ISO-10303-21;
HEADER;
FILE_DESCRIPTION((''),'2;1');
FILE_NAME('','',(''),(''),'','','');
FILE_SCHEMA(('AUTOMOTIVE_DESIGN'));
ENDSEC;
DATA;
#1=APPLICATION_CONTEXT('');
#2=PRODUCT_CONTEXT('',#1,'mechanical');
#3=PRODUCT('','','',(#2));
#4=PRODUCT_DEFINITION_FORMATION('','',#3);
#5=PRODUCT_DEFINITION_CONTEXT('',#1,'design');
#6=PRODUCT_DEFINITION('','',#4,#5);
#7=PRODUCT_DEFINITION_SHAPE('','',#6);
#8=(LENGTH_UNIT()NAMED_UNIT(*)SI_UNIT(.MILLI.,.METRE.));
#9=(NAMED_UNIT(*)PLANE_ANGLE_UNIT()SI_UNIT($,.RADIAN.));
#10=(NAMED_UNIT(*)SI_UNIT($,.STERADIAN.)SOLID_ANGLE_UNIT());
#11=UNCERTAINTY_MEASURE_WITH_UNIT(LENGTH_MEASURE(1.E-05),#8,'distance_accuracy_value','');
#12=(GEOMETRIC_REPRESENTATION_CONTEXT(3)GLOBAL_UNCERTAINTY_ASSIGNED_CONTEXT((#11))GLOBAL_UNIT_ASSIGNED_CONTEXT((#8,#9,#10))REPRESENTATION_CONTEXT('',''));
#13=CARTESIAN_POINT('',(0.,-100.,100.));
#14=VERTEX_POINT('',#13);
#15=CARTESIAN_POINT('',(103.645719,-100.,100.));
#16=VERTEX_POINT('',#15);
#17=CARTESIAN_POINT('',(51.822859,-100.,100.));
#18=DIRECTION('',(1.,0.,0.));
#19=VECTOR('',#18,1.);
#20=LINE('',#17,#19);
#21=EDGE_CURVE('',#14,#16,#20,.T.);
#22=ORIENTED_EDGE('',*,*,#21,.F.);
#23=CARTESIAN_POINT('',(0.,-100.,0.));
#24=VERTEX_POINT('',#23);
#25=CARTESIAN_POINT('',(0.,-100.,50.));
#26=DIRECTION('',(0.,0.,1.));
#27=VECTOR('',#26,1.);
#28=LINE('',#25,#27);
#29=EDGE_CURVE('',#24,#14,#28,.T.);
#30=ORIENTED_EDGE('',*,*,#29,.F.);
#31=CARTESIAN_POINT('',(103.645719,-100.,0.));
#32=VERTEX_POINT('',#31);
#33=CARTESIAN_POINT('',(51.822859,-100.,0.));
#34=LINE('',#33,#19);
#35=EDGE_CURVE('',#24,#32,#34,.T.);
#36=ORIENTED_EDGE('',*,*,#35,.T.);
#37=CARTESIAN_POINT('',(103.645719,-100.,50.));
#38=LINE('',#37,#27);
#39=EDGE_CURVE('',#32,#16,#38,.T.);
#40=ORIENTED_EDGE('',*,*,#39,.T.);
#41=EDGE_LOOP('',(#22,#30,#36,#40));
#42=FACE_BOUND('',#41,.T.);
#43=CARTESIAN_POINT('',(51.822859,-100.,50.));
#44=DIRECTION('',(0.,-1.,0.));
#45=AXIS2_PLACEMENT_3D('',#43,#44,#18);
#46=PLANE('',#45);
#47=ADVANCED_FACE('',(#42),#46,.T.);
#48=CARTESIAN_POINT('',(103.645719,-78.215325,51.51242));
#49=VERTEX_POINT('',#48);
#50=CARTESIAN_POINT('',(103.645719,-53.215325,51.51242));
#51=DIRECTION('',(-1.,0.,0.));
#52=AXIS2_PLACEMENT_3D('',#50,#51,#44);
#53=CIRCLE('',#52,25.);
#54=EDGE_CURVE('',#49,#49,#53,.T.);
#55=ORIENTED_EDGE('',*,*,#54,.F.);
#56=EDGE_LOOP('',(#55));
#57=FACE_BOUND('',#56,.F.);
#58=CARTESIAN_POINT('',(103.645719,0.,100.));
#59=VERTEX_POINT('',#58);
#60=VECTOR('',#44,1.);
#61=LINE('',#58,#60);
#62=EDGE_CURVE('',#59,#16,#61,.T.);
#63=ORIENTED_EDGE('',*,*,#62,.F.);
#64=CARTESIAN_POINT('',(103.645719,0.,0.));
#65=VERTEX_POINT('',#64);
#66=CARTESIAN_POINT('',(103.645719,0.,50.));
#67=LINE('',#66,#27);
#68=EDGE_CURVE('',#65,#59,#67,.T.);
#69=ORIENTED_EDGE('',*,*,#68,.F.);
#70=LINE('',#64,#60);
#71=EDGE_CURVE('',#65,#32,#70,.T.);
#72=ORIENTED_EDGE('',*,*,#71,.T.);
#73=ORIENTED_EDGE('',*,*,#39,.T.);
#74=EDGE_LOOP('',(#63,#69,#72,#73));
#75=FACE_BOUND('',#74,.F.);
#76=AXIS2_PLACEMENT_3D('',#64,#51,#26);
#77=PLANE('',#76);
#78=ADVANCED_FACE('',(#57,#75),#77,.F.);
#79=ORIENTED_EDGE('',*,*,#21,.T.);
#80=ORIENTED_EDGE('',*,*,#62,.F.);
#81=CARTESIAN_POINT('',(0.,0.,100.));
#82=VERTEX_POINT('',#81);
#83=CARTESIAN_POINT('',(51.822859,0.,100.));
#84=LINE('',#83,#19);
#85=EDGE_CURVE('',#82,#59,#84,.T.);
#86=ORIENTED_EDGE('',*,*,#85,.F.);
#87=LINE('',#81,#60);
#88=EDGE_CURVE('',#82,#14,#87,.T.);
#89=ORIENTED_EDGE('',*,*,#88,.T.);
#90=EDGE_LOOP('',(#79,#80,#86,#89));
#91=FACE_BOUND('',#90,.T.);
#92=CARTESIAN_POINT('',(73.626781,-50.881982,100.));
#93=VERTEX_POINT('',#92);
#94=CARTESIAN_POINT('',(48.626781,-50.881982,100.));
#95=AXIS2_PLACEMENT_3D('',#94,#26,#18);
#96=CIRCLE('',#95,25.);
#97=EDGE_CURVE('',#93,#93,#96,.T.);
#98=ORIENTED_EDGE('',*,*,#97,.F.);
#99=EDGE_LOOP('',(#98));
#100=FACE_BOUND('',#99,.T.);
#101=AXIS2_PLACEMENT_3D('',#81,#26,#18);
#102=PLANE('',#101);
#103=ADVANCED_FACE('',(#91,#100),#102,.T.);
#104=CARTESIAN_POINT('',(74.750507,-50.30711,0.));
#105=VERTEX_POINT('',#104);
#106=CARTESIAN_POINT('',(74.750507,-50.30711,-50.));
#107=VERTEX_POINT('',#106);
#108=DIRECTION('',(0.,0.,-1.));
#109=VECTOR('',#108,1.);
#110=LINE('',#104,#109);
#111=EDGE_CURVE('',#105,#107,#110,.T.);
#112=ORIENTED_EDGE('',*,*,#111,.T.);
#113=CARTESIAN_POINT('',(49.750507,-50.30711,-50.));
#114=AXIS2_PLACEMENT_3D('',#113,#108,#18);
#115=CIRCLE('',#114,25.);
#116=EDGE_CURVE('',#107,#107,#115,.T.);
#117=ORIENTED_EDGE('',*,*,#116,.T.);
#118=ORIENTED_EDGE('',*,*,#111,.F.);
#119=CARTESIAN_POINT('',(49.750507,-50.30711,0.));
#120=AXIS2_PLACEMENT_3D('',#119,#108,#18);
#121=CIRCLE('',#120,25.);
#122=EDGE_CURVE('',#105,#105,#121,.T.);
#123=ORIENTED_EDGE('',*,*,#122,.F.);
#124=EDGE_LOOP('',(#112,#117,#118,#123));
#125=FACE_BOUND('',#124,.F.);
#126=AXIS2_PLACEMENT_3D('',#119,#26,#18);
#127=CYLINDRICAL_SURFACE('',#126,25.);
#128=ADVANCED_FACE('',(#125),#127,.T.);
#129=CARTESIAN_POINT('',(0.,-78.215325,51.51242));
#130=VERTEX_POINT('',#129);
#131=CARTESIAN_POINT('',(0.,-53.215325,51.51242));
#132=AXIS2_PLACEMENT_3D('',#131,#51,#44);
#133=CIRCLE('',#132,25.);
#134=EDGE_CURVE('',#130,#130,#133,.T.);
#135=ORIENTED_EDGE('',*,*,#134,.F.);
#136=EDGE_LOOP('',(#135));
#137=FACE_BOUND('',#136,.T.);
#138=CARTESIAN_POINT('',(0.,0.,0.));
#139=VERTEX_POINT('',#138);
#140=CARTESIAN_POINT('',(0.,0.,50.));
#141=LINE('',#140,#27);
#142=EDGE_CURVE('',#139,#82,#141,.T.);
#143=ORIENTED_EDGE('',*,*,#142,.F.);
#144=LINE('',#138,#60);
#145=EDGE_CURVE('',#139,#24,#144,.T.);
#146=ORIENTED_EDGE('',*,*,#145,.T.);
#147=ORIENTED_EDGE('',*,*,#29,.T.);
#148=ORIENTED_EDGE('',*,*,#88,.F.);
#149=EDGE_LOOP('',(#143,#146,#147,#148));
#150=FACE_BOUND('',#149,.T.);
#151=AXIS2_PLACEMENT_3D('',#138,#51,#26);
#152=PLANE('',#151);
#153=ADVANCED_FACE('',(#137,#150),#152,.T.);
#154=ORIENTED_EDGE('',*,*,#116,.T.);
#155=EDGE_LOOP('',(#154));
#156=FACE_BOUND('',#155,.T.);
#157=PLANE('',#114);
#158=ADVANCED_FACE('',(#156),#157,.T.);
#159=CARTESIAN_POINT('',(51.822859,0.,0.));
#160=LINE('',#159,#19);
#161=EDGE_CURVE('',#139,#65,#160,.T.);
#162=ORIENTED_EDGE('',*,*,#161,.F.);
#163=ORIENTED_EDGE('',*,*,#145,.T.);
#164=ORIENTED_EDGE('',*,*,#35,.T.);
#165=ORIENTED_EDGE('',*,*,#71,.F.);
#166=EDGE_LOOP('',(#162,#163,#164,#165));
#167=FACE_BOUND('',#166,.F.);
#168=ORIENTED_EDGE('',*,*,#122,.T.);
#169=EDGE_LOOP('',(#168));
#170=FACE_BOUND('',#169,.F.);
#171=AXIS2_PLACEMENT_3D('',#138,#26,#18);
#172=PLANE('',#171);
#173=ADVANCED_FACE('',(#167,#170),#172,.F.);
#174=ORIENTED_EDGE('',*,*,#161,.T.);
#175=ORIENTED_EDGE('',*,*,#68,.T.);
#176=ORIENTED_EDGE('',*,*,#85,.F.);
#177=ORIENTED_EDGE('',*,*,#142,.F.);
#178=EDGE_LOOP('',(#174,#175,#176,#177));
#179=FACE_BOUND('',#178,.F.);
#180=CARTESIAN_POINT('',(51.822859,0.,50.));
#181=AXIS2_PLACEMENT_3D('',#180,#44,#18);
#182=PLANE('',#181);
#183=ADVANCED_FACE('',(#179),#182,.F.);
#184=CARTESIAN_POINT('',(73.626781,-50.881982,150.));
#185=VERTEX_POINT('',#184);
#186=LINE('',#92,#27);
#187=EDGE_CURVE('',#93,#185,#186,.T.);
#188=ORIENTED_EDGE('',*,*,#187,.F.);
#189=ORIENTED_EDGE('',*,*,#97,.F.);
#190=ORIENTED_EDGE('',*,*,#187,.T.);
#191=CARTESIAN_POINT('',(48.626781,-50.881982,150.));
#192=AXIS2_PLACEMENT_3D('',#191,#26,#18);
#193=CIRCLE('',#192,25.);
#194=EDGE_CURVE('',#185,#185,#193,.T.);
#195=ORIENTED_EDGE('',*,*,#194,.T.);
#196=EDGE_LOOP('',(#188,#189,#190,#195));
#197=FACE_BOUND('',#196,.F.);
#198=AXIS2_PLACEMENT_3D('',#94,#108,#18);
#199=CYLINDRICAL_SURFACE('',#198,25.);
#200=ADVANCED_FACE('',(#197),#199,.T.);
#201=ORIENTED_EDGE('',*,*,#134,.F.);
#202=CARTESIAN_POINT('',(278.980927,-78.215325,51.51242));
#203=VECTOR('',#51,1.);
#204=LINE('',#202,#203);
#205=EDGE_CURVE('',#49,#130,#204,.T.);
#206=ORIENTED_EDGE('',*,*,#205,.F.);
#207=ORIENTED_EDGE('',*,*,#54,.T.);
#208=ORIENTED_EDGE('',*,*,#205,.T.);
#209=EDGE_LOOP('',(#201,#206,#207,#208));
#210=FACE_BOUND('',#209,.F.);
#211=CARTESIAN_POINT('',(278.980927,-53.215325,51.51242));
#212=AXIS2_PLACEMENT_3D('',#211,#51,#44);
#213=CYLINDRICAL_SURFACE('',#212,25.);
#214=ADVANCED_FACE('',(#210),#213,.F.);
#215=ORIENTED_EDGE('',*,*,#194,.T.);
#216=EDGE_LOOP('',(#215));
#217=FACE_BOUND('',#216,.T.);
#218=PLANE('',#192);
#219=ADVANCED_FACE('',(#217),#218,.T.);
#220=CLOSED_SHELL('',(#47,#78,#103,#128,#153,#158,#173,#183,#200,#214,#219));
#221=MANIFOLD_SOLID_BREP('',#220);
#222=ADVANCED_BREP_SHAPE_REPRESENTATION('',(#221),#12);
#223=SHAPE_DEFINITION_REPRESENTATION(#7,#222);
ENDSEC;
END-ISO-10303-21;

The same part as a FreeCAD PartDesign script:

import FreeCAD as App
import Part
import Sketcher

V = App.Vector


def add_polygon(sketch, points):
    """Adds a closed chain of lines whose ends are joined by coincident constraints."""
    first, n = sketch.GeometryCount, len(points)
    for a, b in zip(points, points[1:] + points[:1]):
        sketch.addGeometry(Part.LineSegment(App.Vector(*a, 0), App.Vector(*b, 0)), False)
    for i in range(n):
        sketch.addConstraint(Sketcher.Constraint("Coincident", first + i, 2, first + (i + 1) % n, 1))

doc = App.newDocument("Part")
body = doc.addObject("PartDesign::Body", "Body")

sketch1 = body.newObject("Sketcher::SketchObject", "Sketch")
sketch1.AttachmentSupport = (doc.getObject("XZ_Plane"), [""])
sketch1.MapMode = "FlatFace"
add_polygon(sketch1, [(0, 100), (0, 0), (103.645719, 0), (103.645719, 100)])
sketch1.addConstraint([
    Sketcher.Constraint("Vertical", 0),
    Sketcher.Constraint("Horizontal", 1),
    Sketcher.Constraint("Vertical", 2),
    Sketcher.Constraint("Horizontal", 3),
    Sketcher.Constraint("Coincident", 0, 2, -1, 1),
    Sketcher.Constraint("DistanceY", 0, 2, 0, 1, 100.0),
    Sketcher.Constraint("DistanceX", 1, 1, 1, 2, 103.645719),
])
pad1 = body.newObject("PartDesign::Pad", "Pad")
pad1.Profile = sketch1
pad1.Length = 100

sketch2 = body.newObject("Sketcher::SketchObject", "Sketch001")
sketch2.AttachmentSupport = (doc.getObject("YZ_Plane"), [""])
sketch2.MapMode = "FlatFace"
sketch2.AttachmentOffset = App.Placement(V(0, 0, 103.645719), App.Rotation())
sketch2.addGeometry(Part.Circle(V(-53.215325, 51.51242, 0), V(0, 0, 1), 25), False)
sketch2.addConstraint([
    Sketcher.Constraint("Diameter", 0, 50.0),
    Sketcher.Constraint("DistanceY", -1, 1, 0, 3, 51.51242),
    Sketcher.Constraint("DistanceX", 0, 3, -1, 1, 53.215325),
])
doc.recompute()
hole = body.newObject("PartDesign::Hole", "Hole")
hole.Profile = sketch2
hole.ThreadType = "None"
hole.Diameter = 50
hole.DepthType = "ThroughAll"

sketch3 = body.newObject("Sketcher::SketchObject", "Sketch002")
sketch3.AttachmentSupport = (doc.getObject("XY_Plane"), [""])
sketch3.MapMode = "FlatFace"
sketch3.AttachmentOffset = App.Placement(V(0, 0, 100), App.Rotation())
sketch3.addGeometry(Part.Circle(V(48.626781, -50.881982, 0), V(0, 0, 1), 25), False)
sketch3.addConstraint([
    Sketcher.Constraint("Diameter", 0, 50.0),
    Sketcher.Constraint("DistanceX", -1, 1, 0, 3, 48.626781),
    Sketcher.Constraint("DistanceY", 0, 3, -1, 1, 50.881982),
])
pad2 = body.newObject("PartDesign::Pad", "Pad001")
pad2.Profile = sketch3
pad2.Length = 50

sketch4 = body.newObject("Sketcher::SketchObject", "Sketch003")
sketch4.AttachmentSupport = (doc.getObject("XY_Plane"), [""])
sketch4.MapMode = "FlatFace"
sketch4.addGeometry(Part.Circle(V(49.750507, -50.30711, 0), V(0, 0, 1), 25), False)
sketch4.addConstraint([
    Sketcher.Constraint("Diameter", 0, 50.0),
    Sketcher.Constraint("DistanceY", 0, 3, -1, 1, 50.30711),
    Sketcher.Constraint("DistanceX", -1, 1, 0, 3, 49.750507),
])
pad3 = body.newObject("PartDesign::Pad", "Pad002")
pad3.Profile = sketch4
pad3.Length = 50
pad3.Reversed = True

doc.recompute()
